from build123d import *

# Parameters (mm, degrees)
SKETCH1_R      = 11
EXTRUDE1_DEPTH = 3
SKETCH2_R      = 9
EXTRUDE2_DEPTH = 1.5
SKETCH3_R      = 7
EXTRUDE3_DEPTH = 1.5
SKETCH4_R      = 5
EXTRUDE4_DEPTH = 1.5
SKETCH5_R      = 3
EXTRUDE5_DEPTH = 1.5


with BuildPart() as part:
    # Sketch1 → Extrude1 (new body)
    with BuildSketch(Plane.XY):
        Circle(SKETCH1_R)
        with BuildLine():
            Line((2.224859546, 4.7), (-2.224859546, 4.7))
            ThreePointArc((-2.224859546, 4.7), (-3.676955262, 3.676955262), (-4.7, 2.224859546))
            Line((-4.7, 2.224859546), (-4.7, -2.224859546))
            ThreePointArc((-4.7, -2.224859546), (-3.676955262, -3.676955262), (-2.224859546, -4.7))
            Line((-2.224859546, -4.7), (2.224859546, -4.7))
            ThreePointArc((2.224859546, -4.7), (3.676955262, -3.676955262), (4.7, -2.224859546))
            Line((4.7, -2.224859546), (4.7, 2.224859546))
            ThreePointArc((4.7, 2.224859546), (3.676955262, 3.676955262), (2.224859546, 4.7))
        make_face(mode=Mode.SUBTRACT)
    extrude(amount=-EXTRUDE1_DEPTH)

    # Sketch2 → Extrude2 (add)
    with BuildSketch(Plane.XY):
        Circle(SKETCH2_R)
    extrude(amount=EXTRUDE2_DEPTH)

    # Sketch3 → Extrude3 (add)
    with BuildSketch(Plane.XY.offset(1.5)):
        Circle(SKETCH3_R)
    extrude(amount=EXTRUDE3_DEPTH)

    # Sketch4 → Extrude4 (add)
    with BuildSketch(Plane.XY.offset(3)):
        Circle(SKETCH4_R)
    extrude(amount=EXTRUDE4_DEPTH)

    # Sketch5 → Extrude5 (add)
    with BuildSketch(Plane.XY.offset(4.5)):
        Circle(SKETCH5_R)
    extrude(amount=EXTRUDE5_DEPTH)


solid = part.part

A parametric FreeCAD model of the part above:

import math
import FreeCAD as App
import Part
import Sketcher

V = App.Vector
Q = App.Units.Quantity

doc = App.newDocument("Part")
body = doc.addObject("PartDesign::Body", "Body")

# Sketch on XY plane
sketch1 = doc.addObject("Sketcher::SketchObject", "Sketch")
body.addObject(sketch1)
sketch1.AttachmentSupport = (doc.XY_Plane, [""])
sketch1.MapMode = "FlatFace"
sketch1.addGeometry([
    Part.Circle(V(0, 0, 0), V(0, 0, 1), 11),  # 0
    Part.LineSegment(V(-2.2, 4.7, 0), V(2.2, 4.7, 0)),  # 1
    Part.ArcOfCircle(Part.Circle(V(0, 0, 0), V(0, 0, 1), 5.2), math.radians(25), math.radians(65)),  # 2
    Part.LineSegment(V(4.7, 2.2, 0), V(4.7, -2.2, 0)),  # 3
    Part.ArcOfCircle(Part.Circle(V(0, 0, 0), V(0, 0, 1), 5.2), math.radians(-65), math.radians(-25)),  # 4
    Part.LineSegment(V(2.2, -4.7, 0), V(-2.2, -4.7, 0)),  # 5
    Part.ArcOfCircle(Part.Circle(V(0, 0, 0), V(0, 0, 1), 5.2), math.radians(-155), math.radians(-115)),  # 6
    Part.LineSegment(V(-4.7, -2.2, 0), V(-4.7, 2.2, 0)),  # 7
    Part.ArcOfCircle(Part.Circle(V(0, 0, 0), V(0, 0, 1), 5.2), math.radians(115), math.radians(155)),  # 8
], False)
sketch1.addConstraint([
    Sketcher.Constraint("Coincident", 1, 2, 2, 2),
    Sketcher.Constraint("Coincident", 2, 1, 3, 1),
    Sketcher.Constraint("Coincident", 3, 2, 4, 2),
    Sketcher.Constraint("Coincident", 4, 1, 5, 1),
    Sketcher.Constraint("Coincident", 5, 2, 6, 2),
    Sketcher.Constraint("Coincident", 6, 1, 7, 1),
    Sketcher.Constraint("Coincident", 7, 2, 8, 2),
    Sketcher.Constraint("Coincident", 8, 1, 1, 1),
    Sketcher.Constraint("Horizontal", 1),
    Sketcher.Constraint("Vertical", 3),
    Sketcher.Constraint("Horizontal", 5),
    Sketcher.Constraint("Vertical", 7),
    Sketcher.Constraint("Coincident", 0, 3, -1, 1),
    Sketcher.Constraint("Coincident", 2, 3, -1, 1),
    Sketcher.Constraint("Coincident", 4, 3, -1, 1),
    Sketcher.Constraint("Coincident", 6, 3, -1, 1),
    Sketcher.Constraint("Coincident", 8, 3, -1, 1),
    Sketcher.Constraint("Equal", 2, 4),
    Sketcher.Constraint("Equal", 4, 6),
    Sketcher.Constraint("Equal", 6, 8),
    Sketcher.Constraint("Horizontal", 3, 2, 6, 1),
    Sketcher.Constraint("Vertical", 1, 2, 4, 1),
    Sketcher.Constraint("Equal", 5, 3),
    Sketcher.Constraint("Diameter", 0, Q("22 mm")),
    Sketcher.Constraint("Radius", 2, Q("5.2 mm")),
    Sketcher.Constraint("DistanceY", -1, 1, 1, 2, Q("4.7 mm")),
])
pad1 = doc.addObject("PartDesign::Pad", "Pad")
body.addObject(pad1)
pad1.Profile = sketch1
pad1.Length = 3
pad1.Reversed = True

# Sketch on XY plane
sketch2 = doc.addObject("Sketcher::SketchObject", "Sketch001")
body.addObject(sketch2)
sketch2.AttachmentSupport = (doc.XY_Plane, [""])
sketch2.MapMode = "FlatFace"
sketch2.addGeometry(Part.Circle(V(0, 0, 0), V(0, 0, 1), 9), False)
sketch2.addConstraint([
    Sketcher.Constraint("Coincident", 0, 3, -1, 1),
    Sketcher.Constraint("Diameter", 0, Q("18 mm")),
])
pad2 = doc.addObject("PartDesign::Pad", "Pad001")
body.addObject(pad2)
pad2.Profile = sketch2
pad2.Length = 1.5

# Sketch on XY plane
sketch3 = doc.addObject("Sketcher::SketchObject", "Sketch002")
body.addObject(sketch3)
sketch3.AttachmentSupport = (doc.XY_Plane, [""])
sketch3.MapMode = "FlatFace"
sketch3.AttachmentOffset = App.Placement(V(0, 0, 1.5), App.Rotation())
sketch3.addGeometry(Part.Circle(V(0, 0, 0), V(0, 0, 1), 7), False)
sketch3.addConstraint([
    Sketcher.Constraint("Coincident", 0, 3, -1, 1),
    Sketcher.Constraint("Diameter", 0, Q("14 mm")),
])
pad3 = doc.addObject("PartDesign::Pad", "Pad002")
body.addObject(pad3)
pad3.Profile = sketch3
pad3.Length = 1.5

# Sketch on XY plane
sketch4 = doc.addObject("Sketcher::SketchObject", "Sketch003")
body.addObject(sketch4)
sketch4.AttachmentSupport = (doc.XY_Plane, [""])
sketch4.MapMode = "FlatFace"
sketch4.AttachmentOffset = App.Placement(V(0, 0, 3), App.Rotation())
sketch4.addGeometry(Part.Circle(V(0, 0, 0), V(0, 0, 1), 5), False)
sketch4.addConstraint([
    Sketcher.Constraint("Coincident", 0, 3, -1, 1),
    Sketcher.Constraint("Diameter", 0, Q("10 mm")),
])
pad4 = doc.addObject("PartDesign::Pad", "Pad003")
body.addObject(pad4)
pad4.Profile = sketch4
pad4.Length = 1.5

# Sketch on XY plane
sketch5 = doc.addObject("Sketcher::SketchObject", "Sketch004")
body.addObject(sketch5)
sketch5.AttachmentSupport = (doc.XY_Plane, [""])
sketch5.MapMode = "FlatFace"
sketch5.AttachmentOffset = App.Placement(V(0, 0, 4.5), App.Rotation())
sketch5.addGeometry(Part.Circle(V(0, 0, 0), V(0, 0, 1), 3), False)
sketch5.addConstraint([
    Sketcher.Constraint("Coincident", 0, 3, -1, 1),
    Sketcher.Constraint("Diameter", 0, Q("6 mm")),
])
pad5 = doc.addObject("PartDesign::Pad", "Pad004")
body.addObject(pad5)
pad5.Profile = sketch5
pad5.Length = 1.5

doc.recompute()
